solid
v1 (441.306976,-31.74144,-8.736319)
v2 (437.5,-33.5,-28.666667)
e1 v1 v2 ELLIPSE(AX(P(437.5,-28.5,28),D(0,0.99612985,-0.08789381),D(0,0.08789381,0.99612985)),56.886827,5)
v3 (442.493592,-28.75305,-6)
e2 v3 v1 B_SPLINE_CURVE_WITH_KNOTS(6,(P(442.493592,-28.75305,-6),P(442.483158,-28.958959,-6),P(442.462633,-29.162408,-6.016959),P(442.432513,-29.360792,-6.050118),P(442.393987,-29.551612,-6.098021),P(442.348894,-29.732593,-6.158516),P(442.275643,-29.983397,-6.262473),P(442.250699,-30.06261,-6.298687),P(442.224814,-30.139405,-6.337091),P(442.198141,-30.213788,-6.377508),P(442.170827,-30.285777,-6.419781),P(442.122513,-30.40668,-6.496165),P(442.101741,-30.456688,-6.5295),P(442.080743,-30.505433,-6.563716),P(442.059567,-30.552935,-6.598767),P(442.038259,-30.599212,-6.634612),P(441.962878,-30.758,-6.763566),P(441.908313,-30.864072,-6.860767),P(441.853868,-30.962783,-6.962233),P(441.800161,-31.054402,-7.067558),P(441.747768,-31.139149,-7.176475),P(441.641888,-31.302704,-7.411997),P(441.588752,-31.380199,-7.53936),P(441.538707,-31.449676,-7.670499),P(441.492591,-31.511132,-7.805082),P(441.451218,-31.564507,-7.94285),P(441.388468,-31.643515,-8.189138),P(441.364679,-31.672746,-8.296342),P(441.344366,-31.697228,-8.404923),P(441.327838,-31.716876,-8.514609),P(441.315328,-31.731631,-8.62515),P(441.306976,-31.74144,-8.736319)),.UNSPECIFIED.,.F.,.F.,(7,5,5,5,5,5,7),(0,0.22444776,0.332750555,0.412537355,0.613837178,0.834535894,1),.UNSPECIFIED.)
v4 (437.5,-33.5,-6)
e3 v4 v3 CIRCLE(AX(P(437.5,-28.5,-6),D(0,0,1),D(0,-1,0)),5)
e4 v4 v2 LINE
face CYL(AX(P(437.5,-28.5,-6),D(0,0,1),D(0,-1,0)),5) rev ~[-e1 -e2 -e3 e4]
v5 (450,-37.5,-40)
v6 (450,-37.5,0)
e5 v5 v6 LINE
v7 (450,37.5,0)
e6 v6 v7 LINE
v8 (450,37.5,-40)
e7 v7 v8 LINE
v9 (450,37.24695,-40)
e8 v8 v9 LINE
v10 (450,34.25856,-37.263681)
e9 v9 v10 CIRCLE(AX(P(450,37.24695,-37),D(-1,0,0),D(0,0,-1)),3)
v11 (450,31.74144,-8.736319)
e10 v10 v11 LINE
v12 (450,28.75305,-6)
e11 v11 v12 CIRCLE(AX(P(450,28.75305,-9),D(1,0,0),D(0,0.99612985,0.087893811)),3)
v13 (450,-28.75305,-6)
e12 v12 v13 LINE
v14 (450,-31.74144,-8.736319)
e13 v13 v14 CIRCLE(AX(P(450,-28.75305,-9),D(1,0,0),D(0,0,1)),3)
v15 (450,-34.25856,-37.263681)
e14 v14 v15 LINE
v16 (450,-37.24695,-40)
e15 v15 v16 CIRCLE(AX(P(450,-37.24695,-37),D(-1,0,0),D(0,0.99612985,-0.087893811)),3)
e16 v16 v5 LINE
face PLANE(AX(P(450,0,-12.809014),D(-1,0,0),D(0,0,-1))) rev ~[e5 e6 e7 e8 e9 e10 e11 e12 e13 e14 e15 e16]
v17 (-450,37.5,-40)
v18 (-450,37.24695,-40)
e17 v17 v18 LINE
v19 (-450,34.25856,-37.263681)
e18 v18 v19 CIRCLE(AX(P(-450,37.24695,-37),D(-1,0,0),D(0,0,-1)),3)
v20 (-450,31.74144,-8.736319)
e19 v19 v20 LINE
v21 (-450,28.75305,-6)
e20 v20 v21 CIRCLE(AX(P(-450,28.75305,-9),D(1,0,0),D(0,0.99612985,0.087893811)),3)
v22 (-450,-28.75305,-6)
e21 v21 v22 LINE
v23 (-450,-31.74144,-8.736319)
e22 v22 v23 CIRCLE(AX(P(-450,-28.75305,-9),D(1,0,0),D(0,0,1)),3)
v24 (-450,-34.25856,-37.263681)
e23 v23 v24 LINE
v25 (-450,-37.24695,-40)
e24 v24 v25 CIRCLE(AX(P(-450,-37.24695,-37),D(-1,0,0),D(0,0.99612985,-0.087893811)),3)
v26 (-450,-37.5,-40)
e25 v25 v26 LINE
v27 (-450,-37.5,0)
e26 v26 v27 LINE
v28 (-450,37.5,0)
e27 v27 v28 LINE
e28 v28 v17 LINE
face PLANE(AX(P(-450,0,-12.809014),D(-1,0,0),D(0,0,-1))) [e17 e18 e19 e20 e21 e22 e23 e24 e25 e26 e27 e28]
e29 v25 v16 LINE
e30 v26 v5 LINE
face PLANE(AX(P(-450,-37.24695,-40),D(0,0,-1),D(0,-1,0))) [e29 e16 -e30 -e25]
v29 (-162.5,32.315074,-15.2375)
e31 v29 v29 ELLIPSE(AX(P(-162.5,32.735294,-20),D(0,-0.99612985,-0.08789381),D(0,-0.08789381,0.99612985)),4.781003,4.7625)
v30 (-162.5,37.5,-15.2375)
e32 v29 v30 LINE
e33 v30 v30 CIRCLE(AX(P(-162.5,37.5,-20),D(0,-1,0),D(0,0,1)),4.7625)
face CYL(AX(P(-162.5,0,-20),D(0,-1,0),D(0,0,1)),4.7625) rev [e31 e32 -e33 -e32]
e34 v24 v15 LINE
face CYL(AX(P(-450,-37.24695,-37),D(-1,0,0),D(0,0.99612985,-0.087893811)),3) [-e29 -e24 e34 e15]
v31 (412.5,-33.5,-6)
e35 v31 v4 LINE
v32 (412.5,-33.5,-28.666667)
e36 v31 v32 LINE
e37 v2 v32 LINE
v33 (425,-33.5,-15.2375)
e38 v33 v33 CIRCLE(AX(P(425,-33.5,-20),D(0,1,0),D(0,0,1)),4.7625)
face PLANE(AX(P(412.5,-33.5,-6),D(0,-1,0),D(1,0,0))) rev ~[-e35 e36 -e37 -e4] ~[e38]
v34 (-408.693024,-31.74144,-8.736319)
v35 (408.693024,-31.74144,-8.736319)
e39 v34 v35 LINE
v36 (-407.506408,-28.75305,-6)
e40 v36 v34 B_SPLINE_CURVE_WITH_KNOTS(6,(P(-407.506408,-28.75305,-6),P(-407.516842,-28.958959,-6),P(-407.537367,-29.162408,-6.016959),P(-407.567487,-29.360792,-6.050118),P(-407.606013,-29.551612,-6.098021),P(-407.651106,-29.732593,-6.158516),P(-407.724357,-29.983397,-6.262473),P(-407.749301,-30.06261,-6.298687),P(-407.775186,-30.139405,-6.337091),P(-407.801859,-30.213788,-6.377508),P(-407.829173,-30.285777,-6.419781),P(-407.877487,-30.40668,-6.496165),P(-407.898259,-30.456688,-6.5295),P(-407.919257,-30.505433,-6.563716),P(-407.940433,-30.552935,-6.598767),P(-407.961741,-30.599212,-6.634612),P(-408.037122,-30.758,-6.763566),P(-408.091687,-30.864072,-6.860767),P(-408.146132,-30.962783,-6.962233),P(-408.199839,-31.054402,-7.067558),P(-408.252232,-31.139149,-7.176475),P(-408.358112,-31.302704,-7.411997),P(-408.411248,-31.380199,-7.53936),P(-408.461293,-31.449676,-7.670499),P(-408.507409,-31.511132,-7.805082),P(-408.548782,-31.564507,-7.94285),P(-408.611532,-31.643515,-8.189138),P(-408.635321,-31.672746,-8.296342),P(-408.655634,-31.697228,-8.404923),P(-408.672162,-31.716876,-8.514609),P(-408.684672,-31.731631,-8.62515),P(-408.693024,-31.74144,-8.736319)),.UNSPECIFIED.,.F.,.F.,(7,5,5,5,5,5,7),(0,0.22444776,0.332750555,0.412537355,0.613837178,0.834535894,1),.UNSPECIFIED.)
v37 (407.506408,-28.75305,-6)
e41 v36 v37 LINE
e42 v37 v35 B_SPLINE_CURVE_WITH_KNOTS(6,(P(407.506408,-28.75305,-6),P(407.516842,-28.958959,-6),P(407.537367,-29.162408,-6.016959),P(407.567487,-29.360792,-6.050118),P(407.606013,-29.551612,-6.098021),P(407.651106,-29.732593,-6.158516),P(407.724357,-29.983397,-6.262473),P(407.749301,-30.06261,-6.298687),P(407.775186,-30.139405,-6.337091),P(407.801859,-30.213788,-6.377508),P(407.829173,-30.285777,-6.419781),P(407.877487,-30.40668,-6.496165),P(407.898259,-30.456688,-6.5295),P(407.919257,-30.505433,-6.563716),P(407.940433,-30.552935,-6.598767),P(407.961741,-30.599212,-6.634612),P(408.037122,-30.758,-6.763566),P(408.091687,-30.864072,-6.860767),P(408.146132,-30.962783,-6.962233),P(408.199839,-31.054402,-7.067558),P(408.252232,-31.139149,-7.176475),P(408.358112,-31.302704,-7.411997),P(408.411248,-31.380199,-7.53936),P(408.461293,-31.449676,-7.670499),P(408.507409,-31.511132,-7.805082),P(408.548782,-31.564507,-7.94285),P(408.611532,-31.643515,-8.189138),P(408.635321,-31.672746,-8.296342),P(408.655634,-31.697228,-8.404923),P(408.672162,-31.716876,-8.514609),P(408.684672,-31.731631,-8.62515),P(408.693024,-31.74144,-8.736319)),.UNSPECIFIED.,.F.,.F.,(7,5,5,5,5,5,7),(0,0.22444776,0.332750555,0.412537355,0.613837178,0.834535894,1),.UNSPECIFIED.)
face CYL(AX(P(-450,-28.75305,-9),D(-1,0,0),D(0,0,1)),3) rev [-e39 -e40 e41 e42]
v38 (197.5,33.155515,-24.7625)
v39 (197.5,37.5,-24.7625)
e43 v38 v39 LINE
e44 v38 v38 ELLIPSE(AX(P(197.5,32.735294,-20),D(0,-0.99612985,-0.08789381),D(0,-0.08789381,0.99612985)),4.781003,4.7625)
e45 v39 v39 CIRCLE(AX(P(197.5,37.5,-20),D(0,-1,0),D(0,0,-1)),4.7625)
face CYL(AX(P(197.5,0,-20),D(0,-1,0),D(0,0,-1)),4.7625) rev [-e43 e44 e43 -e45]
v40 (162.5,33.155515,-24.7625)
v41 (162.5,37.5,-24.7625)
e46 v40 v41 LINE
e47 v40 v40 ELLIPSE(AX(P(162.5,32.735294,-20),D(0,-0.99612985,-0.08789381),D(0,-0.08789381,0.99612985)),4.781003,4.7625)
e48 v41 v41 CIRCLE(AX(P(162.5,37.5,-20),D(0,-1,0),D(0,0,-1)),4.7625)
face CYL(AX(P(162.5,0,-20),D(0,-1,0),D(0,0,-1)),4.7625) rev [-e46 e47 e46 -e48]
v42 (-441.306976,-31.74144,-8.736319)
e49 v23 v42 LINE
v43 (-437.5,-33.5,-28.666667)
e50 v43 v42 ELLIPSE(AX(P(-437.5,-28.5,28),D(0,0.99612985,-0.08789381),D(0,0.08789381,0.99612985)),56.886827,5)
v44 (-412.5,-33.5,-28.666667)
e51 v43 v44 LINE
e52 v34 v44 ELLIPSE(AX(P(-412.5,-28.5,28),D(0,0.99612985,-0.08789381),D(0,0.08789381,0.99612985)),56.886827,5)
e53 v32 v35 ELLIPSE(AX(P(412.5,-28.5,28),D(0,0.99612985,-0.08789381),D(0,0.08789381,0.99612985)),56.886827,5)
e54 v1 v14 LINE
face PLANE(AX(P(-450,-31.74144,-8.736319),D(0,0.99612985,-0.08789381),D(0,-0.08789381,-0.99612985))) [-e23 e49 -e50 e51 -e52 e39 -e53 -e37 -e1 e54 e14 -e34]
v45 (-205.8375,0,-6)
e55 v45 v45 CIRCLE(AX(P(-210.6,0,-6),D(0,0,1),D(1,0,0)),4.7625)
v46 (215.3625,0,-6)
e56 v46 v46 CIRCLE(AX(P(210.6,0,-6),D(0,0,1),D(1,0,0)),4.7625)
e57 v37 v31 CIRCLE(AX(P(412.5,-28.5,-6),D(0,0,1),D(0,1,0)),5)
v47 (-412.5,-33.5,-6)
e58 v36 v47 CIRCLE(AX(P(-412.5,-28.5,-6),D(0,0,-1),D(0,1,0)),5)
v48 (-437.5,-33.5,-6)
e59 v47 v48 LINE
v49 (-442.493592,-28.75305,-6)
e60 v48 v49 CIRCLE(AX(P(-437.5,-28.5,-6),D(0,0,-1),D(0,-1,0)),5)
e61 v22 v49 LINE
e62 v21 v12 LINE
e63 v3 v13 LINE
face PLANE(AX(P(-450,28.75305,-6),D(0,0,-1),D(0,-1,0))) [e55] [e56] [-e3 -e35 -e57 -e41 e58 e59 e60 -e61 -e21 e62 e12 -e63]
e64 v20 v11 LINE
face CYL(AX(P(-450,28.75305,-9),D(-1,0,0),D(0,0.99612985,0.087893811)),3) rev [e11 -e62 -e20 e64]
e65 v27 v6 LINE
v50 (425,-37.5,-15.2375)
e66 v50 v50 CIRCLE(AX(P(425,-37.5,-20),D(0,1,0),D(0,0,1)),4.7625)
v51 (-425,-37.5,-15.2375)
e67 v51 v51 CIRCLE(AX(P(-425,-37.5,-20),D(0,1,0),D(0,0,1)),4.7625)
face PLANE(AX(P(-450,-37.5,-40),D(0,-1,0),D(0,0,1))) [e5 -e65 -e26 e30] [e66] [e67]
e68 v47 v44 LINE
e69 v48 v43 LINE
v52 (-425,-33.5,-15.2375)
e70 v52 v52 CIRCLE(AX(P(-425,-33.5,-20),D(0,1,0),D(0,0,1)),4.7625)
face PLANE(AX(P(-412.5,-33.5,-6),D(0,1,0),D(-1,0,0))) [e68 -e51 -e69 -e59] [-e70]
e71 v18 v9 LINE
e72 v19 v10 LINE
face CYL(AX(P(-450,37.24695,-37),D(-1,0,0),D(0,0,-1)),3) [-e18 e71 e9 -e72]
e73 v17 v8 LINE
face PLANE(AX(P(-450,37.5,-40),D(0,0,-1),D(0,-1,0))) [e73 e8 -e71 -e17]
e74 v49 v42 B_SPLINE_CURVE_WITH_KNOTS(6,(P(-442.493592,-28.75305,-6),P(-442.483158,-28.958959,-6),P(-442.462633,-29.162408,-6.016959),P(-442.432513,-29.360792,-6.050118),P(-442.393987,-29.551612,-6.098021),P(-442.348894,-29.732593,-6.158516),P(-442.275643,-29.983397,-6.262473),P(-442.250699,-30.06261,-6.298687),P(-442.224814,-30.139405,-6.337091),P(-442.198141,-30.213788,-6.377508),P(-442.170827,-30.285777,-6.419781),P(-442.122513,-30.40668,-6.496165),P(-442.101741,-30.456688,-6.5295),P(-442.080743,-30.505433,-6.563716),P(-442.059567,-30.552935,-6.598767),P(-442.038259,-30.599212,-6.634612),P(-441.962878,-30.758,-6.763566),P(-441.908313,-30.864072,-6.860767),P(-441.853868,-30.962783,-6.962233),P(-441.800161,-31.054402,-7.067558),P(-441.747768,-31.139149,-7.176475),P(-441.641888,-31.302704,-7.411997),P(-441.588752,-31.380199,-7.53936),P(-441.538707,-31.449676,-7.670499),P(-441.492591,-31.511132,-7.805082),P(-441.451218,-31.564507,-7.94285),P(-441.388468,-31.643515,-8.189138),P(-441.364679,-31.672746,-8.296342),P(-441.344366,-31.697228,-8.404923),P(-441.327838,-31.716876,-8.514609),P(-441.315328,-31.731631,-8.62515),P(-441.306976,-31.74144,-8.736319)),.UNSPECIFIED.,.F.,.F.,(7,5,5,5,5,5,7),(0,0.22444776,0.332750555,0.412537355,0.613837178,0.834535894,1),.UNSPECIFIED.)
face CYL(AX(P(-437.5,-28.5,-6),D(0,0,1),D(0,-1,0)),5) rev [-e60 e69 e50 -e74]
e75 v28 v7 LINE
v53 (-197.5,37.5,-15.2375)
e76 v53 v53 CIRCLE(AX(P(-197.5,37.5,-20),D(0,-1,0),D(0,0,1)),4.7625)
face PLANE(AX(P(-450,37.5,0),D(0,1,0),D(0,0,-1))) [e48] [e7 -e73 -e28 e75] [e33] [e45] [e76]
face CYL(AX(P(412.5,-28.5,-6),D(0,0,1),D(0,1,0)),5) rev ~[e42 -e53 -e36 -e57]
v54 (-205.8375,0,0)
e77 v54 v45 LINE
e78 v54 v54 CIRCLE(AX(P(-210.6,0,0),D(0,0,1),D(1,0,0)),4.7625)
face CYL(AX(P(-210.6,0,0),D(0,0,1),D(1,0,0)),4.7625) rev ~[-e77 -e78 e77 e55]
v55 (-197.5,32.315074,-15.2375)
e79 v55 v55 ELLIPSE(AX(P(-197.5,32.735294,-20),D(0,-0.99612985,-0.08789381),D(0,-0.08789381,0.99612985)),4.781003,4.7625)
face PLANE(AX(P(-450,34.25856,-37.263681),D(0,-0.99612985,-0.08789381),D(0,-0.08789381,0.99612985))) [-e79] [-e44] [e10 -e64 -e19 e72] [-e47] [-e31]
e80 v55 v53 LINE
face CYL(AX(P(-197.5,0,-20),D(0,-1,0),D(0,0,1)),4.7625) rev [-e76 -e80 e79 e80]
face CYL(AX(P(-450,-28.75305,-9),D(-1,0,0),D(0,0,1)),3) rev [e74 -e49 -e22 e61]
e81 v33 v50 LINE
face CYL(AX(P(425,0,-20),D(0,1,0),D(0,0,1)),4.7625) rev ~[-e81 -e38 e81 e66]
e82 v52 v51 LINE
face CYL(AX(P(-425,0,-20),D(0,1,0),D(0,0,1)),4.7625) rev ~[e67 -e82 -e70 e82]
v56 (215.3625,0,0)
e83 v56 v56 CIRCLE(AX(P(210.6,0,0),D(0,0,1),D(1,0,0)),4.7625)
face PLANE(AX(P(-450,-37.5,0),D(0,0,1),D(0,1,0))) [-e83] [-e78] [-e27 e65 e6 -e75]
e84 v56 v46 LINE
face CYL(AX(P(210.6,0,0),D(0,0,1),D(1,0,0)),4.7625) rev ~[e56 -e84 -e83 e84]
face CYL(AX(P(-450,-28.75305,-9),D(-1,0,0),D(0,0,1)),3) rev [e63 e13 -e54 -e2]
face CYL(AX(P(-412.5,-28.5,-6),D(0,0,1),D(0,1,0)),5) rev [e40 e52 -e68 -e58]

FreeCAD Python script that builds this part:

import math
import FreeCAD as App
import Part
import Sketcher
from FreeCAD import Vector
Q = App.Units.Quantity

doc = App.newDocument("Part")
body = doc.addObject("PartDesign::Body", "Body")

# Sketch on YZ plane
sketch1 = body.newObject("Sketcher::SketchObject", "Sketch")
sketch1.AttachmentSupport = (doc.getObject("YZ_Plane"), [""])
sketch1.MapMode = "FlatFace"
sketch1.AttachmentOffset = App.Placement(Vector(0, 0, -450), App.Rotation())
sketch1.addGeometry(Part.LineSegment(Vector(37.5, 0, 0), Vector(-37.5, 0, 0)), False)
sketch1.addGeometry(Part.LineSegment(Vector(-37.5, 0, 0), Vector(-37.5, -40, 0)), False)
sketch1.addGeometry(Part.LineSegment(Vector(-37.5, -40, 0), Vector(-37.25, -40, 0)), False)
sketch1.addGeometry(Part.ArcOfCircle(Part.Circle(Vector(-37.25, -37, 0), Vector(0, 0, 1), 3), math.radians(-90), math.radians(-5)), False)
sketch1.addGeometry(Part.LineSegment(Vector(-34.26, -37.26, 0), Vector(-31.74, -8.74, 0)), False)
sketch1.addGeometry(Part.ArcOfCircle(Part.Circle(Vector(-28.75, -9, 0), Vector(0, 0, 1), 3), math.radians(90), math.radians(175)), False)
sketch1.addGeometry(Part.LineSegment(Vector(-28.75, -6, 0), Vector(28.75, -6, 0)), False)
sketch1.addGeometry(Part.ArcOfCircle(Part.Circle(Vector(28.75, -9, 0), Vector(0, 0, 1), 3), math.radians(5), math.radians(90)), False)
sketch1.addGeometry(Part.LineSegment(Vector(31.74, -8.74, 0), Vector(34.26, -37.26, 0)), False)
sketch1.addGeometry(Part.ArcOfCircle(Part.Circle(Vector(37.25, -37, 0), Vector(0, 0, 1), 3), math.radians(-175), math.radians(-90)), False)
sketch1.addGeometry(Part.LineSegment(Vector(37.25, -40, 0), Vector(37.5, -40, 0)), False)
sketch1.addGeometry(Part.LineSegment(Vector(37.5, -40, 0), Vector(37.5, 0, 0)), False)
sketch1.addConstraint(Sketcher.Constraint("Coincident", 0, 2, 1, 1))
sketch1.addConstraint(Sketcher.Constraint("Coincident", 1, 2, 2, 1))
sketch1.addConstraint(Sketcher.Constraint("Tangent", 2, 2, 3, 1))
sketch1.addConstraint(Sketcher.Constraint("Tangent", 3, 2, 4, 1))
sketch1.addConstraint(Sketcher.Constraint("Tangent", 4, 2, 5, 2))
sketch1.addConstraint(Sketcher.Constraint("Tangent", 5, 1, 6, 1))
sketch1.addConstraint(Sketcher.Constraint("Tangent", 6, 2, 7, 2))
sketch1.addConstraint(Sketcher.Constraint("Tangent", 7, 1, 8, 1))
sketch1.addConstraint(Sketcher.Constraint("Tangent", 8, 2, 9, 1))
sketch1.addConstraint(Sketcher.Constraint("Tangent", 9, 2, 10, 1))
sketch1.addConstraint(Sketcher.Constraint("Coincident", 10, 2, 11, 1))
sketch1.addConstraint(Sketcher.Constraint("Coincident", 11, 2, 0, 1))
sketch1.addConstraint(Sketcher.Constraint("Horizontal", 0))
sketch1.addConstraint(Sketcher.Constraint("Vertical", 1))
sketch1.addConstraint(Sketcher.Constraint("Horizontal", 2))
sketch1.addConstraint(Sketcher.Constraint("Horizontal", 6))
sketch1.addConstraint(Sketcher.Constraint("Horizontal", 10))
sketch1.addConstraint(Sketcher.Constraint("Vertical", 11))
sketch1.addConstraint(Sketcher.Constraint("Equal", 3, 5))
sketch1.addConstraint(Sketcher.Constraint("Equal", 5, 7))
sketch1.addConstraint(Sketcher.Constraint("Equal", 7, 9))
sketch1.addConstraint(Sketcher.Constraint("Symmetric", 0, 2, 11, 2, -1, 1))
sketch1.addConstraint(Sketcher.Constraint("Symmetric", 3, 3, 9, 3, -2))
sketch1.addConstraint(Sketcher.Constraint("Horizontal", 4, 2, 7, 1))
sketch1.addConstraint(Sketcher.Constraint("Radius", 3, Q("3 mm")))
sketch1.addConstraint(Sketcher.Constraint("DistanceX", 0, 2, 0, 1, Q("75 mm")))
sketch1.addConstraint(Sketcher.Constraint("DistanceY", 1, 2, 1, 1, Q("40 mm")))
sketch1.addConstraint(Sketcher.Constraint("DistanceY", 5, 3, -1, 1, Q("9 mm")))
sketch1.addConstraint(Sketcher.Constraint("DistanceX", 3, 3, 7, 3, Q("66 mm")))
sketch1.addConstraint(Sketcher.Constraint("DistanceX", 6, 1, 6, 2, Q("57.506101 mm")))
pad1 = body.newObject("PartDesign::Pad", "Pad")
pad1.Profile = sketch1
pad1.Length = 900

# Sketch on XZ plane
sketch2 = body.newObject("Sketcher::SketchObject", "Sketch001")
sketch2.AttachmentSupport = (doc.getObject("XZ_Plane"), [""])
sketch2.MapMode = "FlatFace"
sketch2.addGeometry(Part.Circle(Vector(-425, -20, 0), Vector(0, 0, 1), 4.8), False)
sketch2.addGeometry(Part.Circle(Vector(425, -20, 0), Vector(0, 0, 1), 4.8), False)
sketch2.addConstraint(Sketcher.Constraint("Equal", 0, 1))
sketch2.addConstraint(Sketcher.Constraint("Symmetric", 0, 3, 1, 3, -2))
sketch2.addConstraint(Sketcher.Constraint("Diameter", 0, Q("9.525 mm")))
sketch2.addConstraint(Sketcher.Constraint("DistanceX", 0, 3, -1, 1, Q("425 mm")))
sketch2.addConstraint(Sketcher.Constraint("DistanceY", 0, 3, -1, 1, Q("20 mm")))
pocket1 = body.newObject("PartDesign::Pocket", "Pocket")
pocket1.Profile = sketch2
pocket1.Type = "ThroughAll"
pocket1.Reversed = True

# Sketch on XY plane
sketch3 = body.newObject("Sketcher::SketchObject", "Sketch002")
sketch3.AttachmentSupport = (doc.getObject("XY_Plane"), [""])
sketch3.MapMode = "FlatFace"
sketch3.AttachmentOffset = App.Placement(Vector(0, 0, -6), App.Rotation())
sketch3.addGeometry(Part.LineSegment(Vector(438, -34, 0), Vector(412, -34, 0)), False)
sketch3.addGeometry(Part.ArcOfCircle(Part.Circle(Vector(412, -28, 0), Vector(0, 0, 1), 5), math.radians(90), math.radians(270)), False)
sketch3.addGeometry(Part.LineSegment(Vector(412, -24, 0), Vector(438, -24, 0)), False)
sketch3.addGeometry(Part.ArcOfCircle(Part.Circle(Vector(438, -28, 0), Vector(0, 0, 1), 5), math.radians(-90), math.radians(90)), False)
sketch3.addGeometry(Part.LineSegment(Vector(-412, -34, 0), Vector(-438, -34, 0)), False)
sketch3.addGeometry(Part.ArcOfCircle(Part.Circle(Vector(-438, -28, 0), Vector(0, 0, 1), 5), math.radians(90), math.radians(270)), False)
sketch3.addGeometry(Part.LineSegment(Vector(-438, -24, 0), Vector(-412, -24, 0)), False)
sketch3.addGeometry(Part.ArcOfCircle(Part.Circle(Vector(-412, -28, 0), Vector(0, 0, 1), 5), math.radians(-90), math.radians(90)), False)
sketch3.addConstraint(Sketcher.Constraint("Tangent", 0, 2, 1, 2))
sketch3.addConstraint(Sketcher.Constraint("Tangent", 1, 1, 2, 1))
sketch3.addConstraint(Sketcher.Constraint("Tangent", 2, 2, 3, 2))
sketch3.addConstraint(Sketcher.Constraint("Tangent", 3, 1, 0, 1))
sketch3.addConstraint(Sketcher.Constraint("Tangent", 4, 2, 5, 2))
sketch3.addConstraint(Sketcher.Constraint("Tangent", 5, 1, 6, 1))
sketch3.addConstraint(Sketcher.Constraint("Tangent", 6, 2, 7, 2))
sketch3.addConstraint(Sketcher.Constraint("Tangent", 7, 1, 4, 1))
sketch3.addConstraint(Sketcher.Constraint("Horizontal", 0))
sketch3.addConstraint(Sketcher.Constraint("Horizontal", 2))
sketch3.addConstraint(Sketcher.Constraint("Horizontal", 4))
sketch3.addConstraint(Sketcher.Constraint("Horizontal", 6))
sketch3.addConstraint(Sketcher.Constraint("Equal", 3, 5))
sketch3.addConstraint(Sketcher.Constraint("Symmetric", 3, 3, 5, 3, -2))
sketch3.addConstraint(Sketcher.Constraint("Equal", 2, 4))
sketch3.addConstraint(Sketcher.Constraint("Radius", 1, Q("5 mm")))
sketch3.addConstraint(Sketcher.Constraint("DistanceX", 0, 2, 0, 1, Q("25 mm")))
sketch3.addConstraint(Sketcher.Constraint("DistanceX", 5, 3, 1, 3, Q("850 mm")))
sketch3.addConstraint(Sketcher.Constraint("DistanceY", 1, 3, -1, 1, Q("28.5 mm")))
pocket2 = body.newObject("PartDesign::Pocket", "Pocket001")
pocket2.Profile = sketch3
pocket2.Length = 40

# Sketch on XZ plane
sketch4 = body.newObject("Sketcher::SketchObject", "Sketch003")
sketch4.AttachmentSupport = (doc.getObject("XZ_Plane"), [""])
sketch4.MapMode = "FlatFace"
sketch4.addGeometry(Part.Circle(Vector(-197.5, -20, 0), Vector(0, 0, 1), 4.8), False)
sketch4.addGeometry(Part.Circle(Vector(-162.5, -20, 0), Vector(0, 0, 1), 4.8), False)
sketch4.addGeometry(Part.Circle(Vector(162.5, -20, 0), Vector(0, 0, 1), 4.8), False)
sketch4.addGeometry(Part.Circle(Vector(197.5, -20, 0), Vector(0, 0, 1), 4.8), False)
sketch4.addConstraint(Sketcher.Constraint("Equal", 0, 1))
sketch4.addConstraint(Sketcher.Constraint("Equal", 1, 2))
sketch4.addConstraint(Sketcher.Constraint("Equal", 2, 3))
sketch4.addConstraint(Sketcher.Constraint("Symmetric", 1, 3, 2, 3, -2))
sketch4.addConstraint(Sketcher.Constraint("Symmetric", 0, 3, 3, 3, -2))
sketch4.addConstraint(Sketcher.Constraint("Horizontal", 0, 3, 1, 3))
sketch4.addConstraint(Sketcher.Constraint("Diameter", 0, Q("9.525 mm")))
sketch4.addConstraint(Sketcher.Constraint("DistanceY", 0, 3, -1, 1, Q("20 mm")))
sketch4.addConstraint(Sketcher.Constraint("DistanceX", 0, 3, 1, 3, Q("35 mm")))
sketch4.addConstraint(Sketcher.Constraint("DistanceX", 1, 3, 2, 3, Q("325 mm")))
pocket3 = body.newObject("PartDesign::Pocket", "Pocket002")
pocket3.Profile = sketch4
pocket3.Type = "ThroughAll"

# Sketch on XY plane
sketch5 = body.newObject("Sketcher::SketchObject", "Sketch004")
sketch5.AttachmentSupport = (doc.getObject("XY_Plane"), [""])
sketch5.MapMode = "FlatFace"
sketch5.addGeometry(Part.Circle(Vector(-210.6, 0, 0), Vector(0, 0, 1), 4.8), False)
sketch5.addGeometry(Part.Circle(Vector(210.6, 0, 0), Vector(0, 0, 1), 4.8), False)
sketch5.addConstraint(Sketcher.Constraint("Equal", 0, 1))
sketch5.addConstraint(Sketcher.Constraint("Symmetric", 0, 3, 1, 3, -1, 1))
sketch5.addConstraint(Sketcher.Constraint("PointOnObject", 0, 3, -1))
sketch5.addConstraint(Sketcher.Constraint("Diameter", 0, Q("9.525 mm")))
sketch5.addConstraint(Sketcher.Constraint("DistanceX", 0, 3, -1, 1, Q("210.6 mm")))
pocket4 = body.newObject("PartDesign::Pocket", "Pocket003")
pocket4.Profile = sketch5
pocket4.Type = "ThroughAll"

doc.recompute()
